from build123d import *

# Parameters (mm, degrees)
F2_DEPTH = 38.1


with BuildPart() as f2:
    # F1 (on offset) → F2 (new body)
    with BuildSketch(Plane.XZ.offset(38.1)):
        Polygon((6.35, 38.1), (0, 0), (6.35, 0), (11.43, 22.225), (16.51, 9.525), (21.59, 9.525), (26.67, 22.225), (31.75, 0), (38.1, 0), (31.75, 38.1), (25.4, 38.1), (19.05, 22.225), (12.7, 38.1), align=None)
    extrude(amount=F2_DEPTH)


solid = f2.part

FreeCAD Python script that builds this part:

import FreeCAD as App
import Part
import Sketcher
from FreeCAD import Vector
Q = App.Units.Quantity


def add_polygon(sketch, points):
    """Adds a closed chain of lines whose ends are joined by coincident constraints."""
    first, n = sketch.GeometryCount, len(points)
    for a, b in zip(points, points[1:] + points[:1]):
        sketch.addGeometry(Part.LineSegment(App.Vector(*a, 0), App.Vector(*b, 0)), False)
    for i in range(n):
        sketch.addConstraint(Sketcher.Constraint("Coincident", first + i, 2, first + (i + 1) % n, 1))

doc = App.newDocument("Part")
body = doc.addObject("PartDesign::Body", "Body")

sketch1 = body.newObject("Sketcher::SketchObject", "Sketch")
sketch1.AttachmentSupport = (doc.getObject("XZ_Plane"), [""])
sketch1.MapMode = "FlatFace"
sketch1.AttachmentOffset = App.Placement(Vector(0, 0, 1.5 * 25.4), App.Rotation())
add_polygon(sketch1, [(6, 38), (0, 0), (6, 0), (11, 22), (17, 10), (22, 10), (27, 22), (32, 0), (38, 0), (32, 38), (25, 38), (19, 22), (13, 38)])
sketch1.addConstraint([
    Sketcher.Constraint("Horizontal", 1),
    Sketcher.Constraint("Horizontal", 4),
    Sketcher.Constraint("Horizontal", 7),
    Sketcher.Constraint("Horizontal", 9),
    Sketcher.Constraint("Horizontal", 12),
    Sketcher.Constraint("Coincident", 0, 2, -1, 1),
    Sketcher.Constraint("PointOnObject", 6, 2, -1),
    Sketcher.Constraint("Parallel", 5, 10),
    Sketcher.Constraint("Parallel", 3, 11),
    Sketcher.Constraint("Horizontal", 2, 2, 5, 2),
    Sketcher.Constraint("Horizontal", 5, 2, 10, 2),
    Sketcher.Constraint("Horizontal", 9, 2, 11, 2),
    Sketcher.Constraint("Vertical", 6, 2, 8, 2),
    Sketcher.Constraint("Vertical", 1, 2, 12, 2),
    Sketcher.Constraint("Equal", 1, 7),
    Sketcher.Constraint("Equal", 7, 9),
    Sketcher.Constraint("Equal", 9, 12),
    Sketcher.Constraint("Equal", 3, 5),
    Sketcher.Constraint("Equal", 2, 6),
    Sketcher.Constraint("DistanceX", 4, 1, 4, 2, Q("0.2 in")),
    Sketcher.Constraint("DistanceX", -1, 1, 9, 2, Q("1 in")),
    Sketcher.Constraint("DistanceX", 1, 1, 1, 2, Q("0.25 in")),
    Sketcher.Constraint("DistanceY", -1, 1, 8, 2, Q("1.5 in")),
    Sketcher.Constraint("DistanceX", 1, 2, 2, 2, Q("0.2 in")),
    Sketcher.Constraint("DistanceY", 3, 2, 2, 2, Q("0.5 in")),
])
pad1 = body.newObject("PartDesign::Pad", "Pad")
pad1.Profile = sketch1
pad1.Length = Q("1.5 in")

doc.recompute()
